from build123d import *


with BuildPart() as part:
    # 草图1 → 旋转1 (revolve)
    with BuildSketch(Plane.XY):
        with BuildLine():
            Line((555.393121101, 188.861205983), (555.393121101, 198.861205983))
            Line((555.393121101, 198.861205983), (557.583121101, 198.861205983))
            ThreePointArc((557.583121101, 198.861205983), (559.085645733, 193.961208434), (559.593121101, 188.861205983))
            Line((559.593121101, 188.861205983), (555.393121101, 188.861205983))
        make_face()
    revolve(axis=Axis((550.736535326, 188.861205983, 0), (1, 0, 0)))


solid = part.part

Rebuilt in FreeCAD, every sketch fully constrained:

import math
import FreeCAD as App
import Part
import Sketcher

V = App.Vector
Q = App.Units.Quantity

doc = App.newDocument("Part")
body = doc.addObject("PartDesign::Body", "Body")

sketch1 = doc.addObject("Sketcher::SketchObject", "Sketch")
body.addObject(sketch1)
sketch1.AttachmentSupport = (doc.XY_Plane, [""])
sketch1.MapMode = "FlatFace"
sketch1.addGeometry(Part.LineSegment(V(555.4, 198.9, 0), V(555.4, 188.9, 0)), False)
sketch1.addGeometry(Part.LineSegment(V(555.4, 188.9, 0), V(559.6, 188.9, 0)), False)
sketch1.addGeometry(Part.ArcOfCircle(Part.Circle(V(533.7, 188.9, 0), V(0, 0, 1), 25.9), math.radians(0), math.radians(23)), False)
sketch1.addGeometry(Part.LineSegment(V(557.6, 198.9, 0), V(555.4, 198.9, 0)), False)
sketch1.addGeometry(Part.LineSegment(V(533.7, 188.9, 0), V(559.6, 188.9, 0)), True)
sketch1.addConstraint(Sketcher.Constraint("Coincident", 0, 2, 1, 1))
sketch1.addConstraint(Sketcher.Constraint("Coincident", 1, 2, 2, 1))
sketch1.addConstraint(Sketcher.Constraint("Coincident", 2, 2, 3, 1))
sketch1.addConstraint(Sketcher.Constraint("Coincident", 3, 2, 0, 1))
sketch1.addConstraint(Sketcher.Constraint("Vertical", 0))
sketch1.addConstraint(Sketcher.Constraint("Horizontal", 1))
sketch1.addConstraint(Sketcher.Constraint("Horizontal", 3))
sketch1.addConstraint(Sketcher.Constraint("Horizontal", 4))
sketch1.addConstraint(Sketcher.Constraint("Coincident", 4, 1, 2, 3))
sketch1.addConstraint(Sketcher.Constraint("Coincident", 4, 2, 1, 2))
sketch1.addConstraint(Sketcher.Constraint("DistanceY", 0, 2, 0, 1, Q("10 mm")))
sketch1.addConstraint(Sketcher.Constraint("DistanceX", 1, 1, 1, 2, Q("4.2 mm")))
sketch1.addConstraint(Sketcher.Constraint("DistanceX", 3, 2, 3, 1, Q("2.19 mm")))
sketch1.addConstraint(Sketcher.Constraint("DistanceX", -1, 1, 2, 3, Q("533.712499 mm")))
sketch1.addConstraint(Sketcher.Constraint("DistanceY", -1, 1, 2, 3, Q("188.861206 mm")))
revolution = doc.addObject("PartDesign::Revolution", "Revolution")
body.addObject(revolution)
revolution.Profile = sketch1
revolution.ReferenceAxis = (sketch1, ["Axis0"])
revolution.Angle = 360

doc.recompute()
